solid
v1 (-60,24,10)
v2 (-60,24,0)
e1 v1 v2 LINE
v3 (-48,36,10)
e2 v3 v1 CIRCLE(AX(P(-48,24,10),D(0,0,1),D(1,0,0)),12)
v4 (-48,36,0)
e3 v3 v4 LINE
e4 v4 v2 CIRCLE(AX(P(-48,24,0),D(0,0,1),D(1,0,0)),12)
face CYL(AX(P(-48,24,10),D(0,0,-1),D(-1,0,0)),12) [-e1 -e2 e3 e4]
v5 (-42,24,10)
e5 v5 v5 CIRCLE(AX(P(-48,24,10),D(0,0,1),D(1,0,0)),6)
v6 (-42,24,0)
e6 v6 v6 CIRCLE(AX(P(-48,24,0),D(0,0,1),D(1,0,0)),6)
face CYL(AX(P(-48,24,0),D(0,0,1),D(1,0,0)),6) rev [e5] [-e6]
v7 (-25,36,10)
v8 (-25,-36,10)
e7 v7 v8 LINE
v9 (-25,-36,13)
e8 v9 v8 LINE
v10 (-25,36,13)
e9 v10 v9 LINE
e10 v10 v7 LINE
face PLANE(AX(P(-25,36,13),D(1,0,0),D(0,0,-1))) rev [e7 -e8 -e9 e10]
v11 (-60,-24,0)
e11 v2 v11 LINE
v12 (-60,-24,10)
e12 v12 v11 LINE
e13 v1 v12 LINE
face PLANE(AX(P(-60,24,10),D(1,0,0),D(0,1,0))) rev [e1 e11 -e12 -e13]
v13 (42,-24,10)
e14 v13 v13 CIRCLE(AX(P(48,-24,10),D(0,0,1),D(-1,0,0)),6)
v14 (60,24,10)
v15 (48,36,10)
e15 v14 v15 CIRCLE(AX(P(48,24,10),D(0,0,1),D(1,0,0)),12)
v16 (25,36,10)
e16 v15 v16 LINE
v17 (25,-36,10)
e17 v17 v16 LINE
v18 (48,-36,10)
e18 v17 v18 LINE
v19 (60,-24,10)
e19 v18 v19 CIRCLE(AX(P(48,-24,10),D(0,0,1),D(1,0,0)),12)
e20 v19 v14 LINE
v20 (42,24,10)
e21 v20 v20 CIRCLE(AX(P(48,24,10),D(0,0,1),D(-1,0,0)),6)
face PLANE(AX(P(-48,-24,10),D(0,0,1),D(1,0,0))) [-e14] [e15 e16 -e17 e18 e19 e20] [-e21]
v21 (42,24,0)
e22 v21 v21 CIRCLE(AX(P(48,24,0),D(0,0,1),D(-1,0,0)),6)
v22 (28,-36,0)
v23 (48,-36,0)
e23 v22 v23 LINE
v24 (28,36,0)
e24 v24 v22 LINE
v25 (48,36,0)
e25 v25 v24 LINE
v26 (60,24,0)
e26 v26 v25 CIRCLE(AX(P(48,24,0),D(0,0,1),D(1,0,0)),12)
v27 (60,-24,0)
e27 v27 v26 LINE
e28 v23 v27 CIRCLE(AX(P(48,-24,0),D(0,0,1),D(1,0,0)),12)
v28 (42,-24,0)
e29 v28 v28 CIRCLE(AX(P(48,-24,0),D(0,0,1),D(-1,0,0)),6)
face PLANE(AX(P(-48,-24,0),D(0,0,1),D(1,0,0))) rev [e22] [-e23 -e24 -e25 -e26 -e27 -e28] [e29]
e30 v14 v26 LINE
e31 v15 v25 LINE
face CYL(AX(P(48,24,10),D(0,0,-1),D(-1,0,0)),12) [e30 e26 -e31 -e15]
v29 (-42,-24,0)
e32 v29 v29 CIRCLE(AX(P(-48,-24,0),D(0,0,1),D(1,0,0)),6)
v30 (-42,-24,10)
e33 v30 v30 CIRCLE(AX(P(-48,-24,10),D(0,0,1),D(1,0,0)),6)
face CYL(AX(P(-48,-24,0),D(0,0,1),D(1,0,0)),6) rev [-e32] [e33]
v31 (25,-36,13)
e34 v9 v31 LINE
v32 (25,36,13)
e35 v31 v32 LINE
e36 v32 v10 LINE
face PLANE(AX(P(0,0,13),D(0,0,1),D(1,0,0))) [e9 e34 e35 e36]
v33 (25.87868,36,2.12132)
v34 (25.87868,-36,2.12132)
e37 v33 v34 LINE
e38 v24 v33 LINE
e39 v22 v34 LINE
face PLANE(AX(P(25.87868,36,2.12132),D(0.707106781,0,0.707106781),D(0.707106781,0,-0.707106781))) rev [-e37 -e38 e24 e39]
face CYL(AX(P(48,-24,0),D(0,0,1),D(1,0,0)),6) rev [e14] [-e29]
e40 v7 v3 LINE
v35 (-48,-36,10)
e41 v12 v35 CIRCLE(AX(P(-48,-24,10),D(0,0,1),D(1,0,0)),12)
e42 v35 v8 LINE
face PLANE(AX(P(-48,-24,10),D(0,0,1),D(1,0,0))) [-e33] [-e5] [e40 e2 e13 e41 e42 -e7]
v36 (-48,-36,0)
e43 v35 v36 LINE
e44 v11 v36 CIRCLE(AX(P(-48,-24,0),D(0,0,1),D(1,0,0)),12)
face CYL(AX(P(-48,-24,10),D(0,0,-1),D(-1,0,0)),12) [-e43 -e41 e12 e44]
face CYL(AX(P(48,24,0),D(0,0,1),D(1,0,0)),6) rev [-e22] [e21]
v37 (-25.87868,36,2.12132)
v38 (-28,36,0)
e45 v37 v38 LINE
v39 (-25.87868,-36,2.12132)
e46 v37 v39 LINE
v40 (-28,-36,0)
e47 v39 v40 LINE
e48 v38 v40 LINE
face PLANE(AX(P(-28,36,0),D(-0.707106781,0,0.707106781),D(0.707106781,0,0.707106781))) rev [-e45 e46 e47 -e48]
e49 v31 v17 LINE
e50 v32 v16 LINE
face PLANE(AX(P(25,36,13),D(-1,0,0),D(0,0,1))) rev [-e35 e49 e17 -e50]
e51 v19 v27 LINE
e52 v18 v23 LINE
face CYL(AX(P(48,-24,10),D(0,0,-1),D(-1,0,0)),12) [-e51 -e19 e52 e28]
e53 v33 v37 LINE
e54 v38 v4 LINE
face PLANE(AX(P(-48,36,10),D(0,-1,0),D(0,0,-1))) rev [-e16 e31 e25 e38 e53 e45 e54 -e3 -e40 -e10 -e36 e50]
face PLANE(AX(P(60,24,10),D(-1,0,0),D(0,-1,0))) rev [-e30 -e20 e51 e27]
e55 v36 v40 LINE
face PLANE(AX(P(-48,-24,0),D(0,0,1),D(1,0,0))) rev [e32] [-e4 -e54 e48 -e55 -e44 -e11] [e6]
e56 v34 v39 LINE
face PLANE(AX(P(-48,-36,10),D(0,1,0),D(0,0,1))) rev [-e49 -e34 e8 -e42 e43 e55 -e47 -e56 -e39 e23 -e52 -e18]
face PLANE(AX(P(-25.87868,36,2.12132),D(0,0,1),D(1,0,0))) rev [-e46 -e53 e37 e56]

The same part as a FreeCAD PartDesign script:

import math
import FreeCAD as App
import Part
import Sketcher


def add_polygon(sketch, points):
    """Adds a closed chain of lines whose ends are joined by coincident constraints."""
    first, n = sketch.GeometryCount, len(points)
    for a, b in zip(points, points[1:] + points[:1]):
        sketch.addGeometry(Part.LineSegment(App.Vector(*a, 0), App.Vector(*b, 0)), False)
    for i in range(n):
        sketch.addConstraint(Sketcher.Constraint("Coincident", first + i, 2, first + (i + 1) % n, 1))

doc = App.newDocument("Part")
body = doc.addObject("PartDesign::Body", "Body")

# Sketch on XY plane
sketch1 = body.newObject("Sketcher::SketchObject", "Sketch")
sketch1.AttachmentSupport = (doc.getObject("XY_Plane"), [""])
sketch1.MapMode = "FlatFace"
sketch1.addGeometry([
    Part.LineSegment(App.Vector(48, 36, 0), App.Vector(-48, 36, 0)),  # 0
    Part.ArcOfCircle(Part.Circle(App.Vector(-48, 24, 0), App.Vector(0, 0, 1), 12), math.radians(90), math.radians(180)),  # 1
    Part.LineSegment(App.Vector(-60, 24, 0), App.Vector(-60, -24, 0)),  # 2
    Part.ArcOfCircle(Part.Circle(App.Vector(-48, -24, 0), App.Vector(0, 0, 1), 12), math.radians(-180), math.radians(-90)),  # 3
    Part.LineSegment(App.Vector(-48, -36, 0), App.Vector(48, -36, 0)),  # 4
    Part.ArcOfCircle(Part.Circle(App.Vector(48, -24, 0), App.Vector(0, 0, 1), 12), math.radians(-90), math.radians(0)),  # 5
    Part.LineSegment(App.Vector(60, -24, 0), App.Vector(60, 24, 0)),  # 6
    Part.ArcOfCircle(Part.Circle(App.Vector(48, 24, 0), App.Vector(0, 0, 1), 12), math.radians(0), math.radians(90)),  # 7
], False)
sketch1.addConstraint([
    Sketcher.Constraint("Tangent", 0, 2, 1, 1),
    Sketcher.Constraint("Tangent", 1, 2, 2, 1),
    Sketcher.Constraint("Tangent", 2, 2, 3, 1),
    Sketcher.Constraint("Tangent", 3, 2, 4, 1),
    Sketcher.Constraint("Tangent", 4, 2, 5, 1),
    Sketcher.Constraint("Tangent", 5, 2, 6, 1),
    Sketcher.Constraint("Tangent", 6, 2, 7, 1),
    Sketcher.Constraint("Tangent", 7, 2, 0, 1),
    Sketcher.Constraint("Horizontal", 0),
    Sketcher.Constraint("Vertical", 2),
    Sketcher.Constraint("Horizontal", 4),
    Sketcher.Constraint("Vertical", 6),
    Sketcher.Constraint("Equal", 1, 3),
    Sketcher.Constraint("Equal", 3, 5),
    Sketcher.Constraint("Equal", 5, 7),
    Sketcher.Constraint("Symmetric", 1, 3, 5, 3, -1, 1),
    Sketcher.Constraint("Radius", 1, 12.0),
    Sketcher.Constraint("DistanceX", 0, 2, 0, 1, 96.0),
    Sketcher.Constraint("DistanceY", 2, 2, 2, 1, 48.0),
])
pad1 = body.newObject("PartDesign::Pad", "Pad")
pad1.Profile = sketch1
pad1.Length = 10

# Sketch on XY plane
sketch2 = body.newObject("Sketcher::SketchObject", "Sketch001")
sketch2.AttachmentSupport = (doc.getObject("XY_Plane"), [""])
sketch2.MapMode = "FlatFace"
sketch2.AttachmentOffset = App.Placement(App.Vector(0, 0, 10), App.Rotation())
sketch2.addGeometry([
    Part.Circle(App.Vector(-48, 24, 0), App.Vector(0, 0, 1), 6),
    Part.Circle(App.Vector(-48, -24, 0), App.Vector(0, 0, 1), 6),
    Part.Circle(App.Vector(48, -24, 0), App.Vector(0, 0, 1), 6),
    Part.Circle(App.Vector(48, 24, 0), App.Vector(0, 0, 1), 6),
], False)
sketch2.addConstraint([
    Sketcher.Constraint("Equal", 0, 1),
    Sketcher.Constraint("Equal", 1, 2),
    Sketcher.Constraint("Equal", 2, 3),
    Sketcher.Constraint("Symmetric", 0, 3, 2, 3, -1, 1),
    Sketcher.Constraint("Symmetric", 1, 3, 3, 3, -1, 1),
    Sketcher.Constraint("Symmetric", 1, 3, 2, 3, -2),
    Sketcher.Constraint("Diameter", 0, 12.0),
    Sketcher.Constraint("DistanceX", 0, 3, -1, 1, 48.0),
    Sketcher.Constraint("DistanceY", -1, 1, 0, 3, 24.0),
])
pocket1 = body.newObject("PartDesign::Pocket", "Pocket")
pocket1.Profile = sketch2
pocket1.Type = "ThroughAll"

# Sketch on XZ plane
sketch3 = body.newObject("Sketcher::SketchObject", "Sketch002")
sketch3.AttachmentSupport = (doc.getObject("XZ_Plane"), [""])
sketch3.MapMode = "FlatFace"
sketch3.AttachmentOffset = App.Placement(App.Vector(0, 0, 36), App.Rotation())
add_polygon(sketch3, [(-28, 0), (28, 0), (25.9, 2.1), (-25.9, 2.1)])  # lines 0-3
sketch3.addConstraint([
    Sketcher.Constraint("Horizontal", 0),
    Sketcher.Constraint("Horizontal", 2),
    Sketcher.Constraint("Symmetric", 0, 2, 3, 2, -1, 1),
    Sketcher.Constraint("Perpendicular", 1, 3),
    Sketcher.Constraint("Equal", 1, 3),
    Sketcher.Constraint("DistanceX", 0, 1, 0, 2, 56.0),
    Sketcher.Constraint("Distance", 1, 3.0),
])
pocket2 = body.newObject("PartDesign::Pocket", "Pocket001")
pocket2.Profile = sketch3
pocket2.Type = "ThroughAll"

# Sketch on XY plane
sketch4 = body.newObject("Sketcher::SketchObject", "Sketch003")
sketch4.AttachmentSupport = (doc.getObject("XY_Plane"), [""])
sketch4.MapMode = "FlatFace"
sketch4.AttachmentOffset = App.Placement(App.Vector(0, 0, 10), App.Rotation())
add_polygon(sketch4, [(-25, 36), (-25, -36), (25, -36), (25, 36)])  # lines 0-3
sketch4.addConstraint([
    Sketcher.Constraint("Vertical", 0),
    Sketcher.Constraint("Horizontal", 1),
    Sketcher.Constraint("Vertical", 2),
    Sketcher.Constraint("Horizontal", 3),
    Sketcher.Constraint("Symmetric", 0, 2, 2, 2, -1, 1),
    Sketcher.Constraint("DistanceX", 1, 1, 1, 2, 50.0),
    Sketcher.Constraint("DistanceY", 0, 2, 0, 1, 72.0),
])
pad2 = body.newObject("PartDesign::Pad", "Pad001")
pad2.Profile = sketch4
pad2.Length = 3

doc.recompute()
